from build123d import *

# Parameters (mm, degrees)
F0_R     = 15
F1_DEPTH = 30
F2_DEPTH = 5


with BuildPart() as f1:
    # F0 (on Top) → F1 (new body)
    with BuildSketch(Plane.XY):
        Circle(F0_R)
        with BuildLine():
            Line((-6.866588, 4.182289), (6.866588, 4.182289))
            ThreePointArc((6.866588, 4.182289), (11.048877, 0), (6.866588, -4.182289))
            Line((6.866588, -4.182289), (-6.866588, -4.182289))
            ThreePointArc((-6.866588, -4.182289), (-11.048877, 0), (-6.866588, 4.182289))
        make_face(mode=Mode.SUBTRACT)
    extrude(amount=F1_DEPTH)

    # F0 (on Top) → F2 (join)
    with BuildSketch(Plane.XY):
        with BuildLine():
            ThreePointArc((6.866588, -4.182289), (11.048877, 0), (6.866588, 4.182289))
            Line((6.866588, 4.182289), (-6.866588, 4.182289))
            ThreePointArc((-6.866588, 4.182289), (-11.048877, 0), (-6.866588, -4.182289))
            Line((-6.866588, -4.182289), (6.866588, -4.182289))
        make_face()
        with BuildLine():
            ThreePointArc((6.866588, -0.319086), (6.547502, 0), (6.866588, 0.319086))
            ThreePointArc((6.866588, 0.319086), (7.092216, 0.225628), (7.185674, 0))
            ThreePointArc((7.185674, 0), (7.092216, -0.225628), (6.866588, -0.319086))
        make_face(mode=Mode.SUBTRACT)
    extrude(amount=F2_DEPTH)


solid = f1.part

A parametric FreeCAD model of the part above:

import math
import FreeCAD as App
import Part
import Sketcher

V = App.Vector

doc = App.newDocument("Part")
body = doc.addObject("PartDesign::Body", "Body")

# Sketch on XY plane
sketch1 = doc.addObject("Sketcher::SketchObject", "Sketch")
body.addObject(sketch1)
sketch1.AttachmentSupport = (doc.XY_Plane, [""])
sketch1.MapMode = "FlatFace"
sketch1.addGeometry(Part.Circle(V(0, 0, 0), V(0, 0, 1), 15), False)
sketch1.addGeometry(Part.ArcOfCircle(Part.Circle(V(-6.9, 0, 0), V(0, 0, 1), 4.2), math.radians(90), math.radians(270)), False)
sketch1.addGeometry(Part.LineSegment(V(-6.9, 4.2, 0), V(6.9, 4.2, 0)), False)
sketch1.addGeometry(Part.ArcOfCircle(Part.Circle(V(6.9, 0, 0), V(0, 0, 1), 4.2), math.radians(-90), math.radians(90)), False)
sketch1.addGeometry(Part.LineSegment(V(6.9, -4.2, 0), V(-6.9, -4.2, 0)), False)
sketch1.addConstraint(Sketcher.Constraint("Tangent", 1, 1, 2, 1))
sketch1.addConstraint(Sketcher.Constraint("Tangent", 2, 2, 3, 2))
sketch1.addConstraint(Sketcher.Constraint("Tangent", 3, 1, 4, 1))
sketch1.addConstraint(Sketcher.Constraint("Tangent", 4, 2, 1, 2))
sketch1.addConstraint(Sketcher.Constraint("Horizontal", 2))
sketch1.addConstraint(Sketcher.Constraint("Horizontal", 4))
sketch1.addConstraint(Sketcher.Constraint("Coincident", 0, 3, -1, 1))
sketch1.addConstraint(Sketcher.Constraint("Symmetric", 1, 3, 3, 3, -1, 1))
sketch1.addConstraint(Sketcher.Constraint("Diameter", 0, 30.0))
sketch1.addConstraint(Sketcher.Constraint("Radius", 1, 4.182289))
sketch1.addConstraint(Sketcher.Constraint("DistanceX", 2, 1, 2, 2, 13.733176))
pad1 = doc.addObject("PartDesign::Pad", "Pad")
body.addObject(pad1)
pad1.Profile = sketch1
pad1.Length = 30

# Sketch on XY plane
sketch2 = doc.addObject("Sketcher::SketchObject", "Sketch001")
body.addObject(sketch2)
sketch2.AttachmentSupport = (doc.XY_Plane, [""])
sketch2.MapMode = "FlatFace"
sketch2.addGeometry(Part.ArcOfCircle(Part.Circle(V(6.87, 0, 0), V(0, 0, 1), 4.18), math.radians(-90), math.radians(90)), False)
sketch2.addGeometry(Part.LineSegment(V(6.87, 4.18, 0), V(-6.87, 4.18, 0)), False)
sketch2.addGeometry(Part.ArcOfCircle(Part.Circle(V(-6.87, 0, 0), V(0, 0, 1), 4.18), math.radians(90), math.radians(270)), False)
sketch2.addGeometry(Part.LineSegment(V(-6.87, -4.18, 0), V(6.87, -4.18, 0)), False)
sketch2.addGeometry(Part.ArcOfCircle(Part.Circle(V(6.87, 0, 0), V(0, 0, 1), 0.32), math.radians(-90), math.radians(0)), False)
sketch2.addGeometry(Part.ArcOfCircle(Part.Circle(V(6.87, 0, 0), V(0, 0, 1), 0.32), math.radians(90), math.radians(270)), False)
sketch2.addGeometry(Part.ArcOfCircle(Part.Circle(V(6.87, 0, 0), V(0, 0, 1), 0.32), math.radians(0), math.radians(90)), False)
sketch2.addConstraint(Sketcher.Constraint("Tangent", 0, 2, 1, 1))
sketch2.addConstraint(Sketcher.Constraint("Tangent", 1, 2, 2, 1))
sketch2.addConstraint(Sketcher.Constraint("Tangent", 2, 2, 3, 1))
sketch2.addConstraint(Sketcher.Constraint("Tangent", 3, 2, 0, 1))
sketch2.addConstraint(Sketcher.Constraint("Tangent", 4, 1, 5, 2))
sketch2.addConstraint(Sketcher.Constraint("Tangent", 5, 1, 6, 2))
sketch2.addConstraint(Sketcher.Constraint("Coincident", 6, 1, 4, 2))
sketch2.addConstraint(Sketcher.Constraint("Horizontal", 1))
sketch2.addConstraint(Sketcher.Constraint("Horizontal", 3))
sketch2.addConstraint(Sketcher.Constraint("Coincident", 4, 3, 0, 3))
sketch2.addConstraint(Sketcher.Constraint("Equal", 4, 5))
sketch2.addConstraint(Sketcher.Constraint("Symmetric", 0, 3, 2, 3, -1, 1))
sketch2.addConstraint(Sketcher.Constraint("PointOnObject", 6, 1, -1))
sketch2.addConstraint(Sketcher.Constraint("Vertical", 3, 2, 4, 1))
sketch2.addConstraint(Sketcher.Constraint("Vertical", 4, 1, 5, 1))
sketch2.addConstraint(Sketcher.Constraint("Radius", 0, 4.182289))
sketch2.addConstraint(Sketcher.Constraint("Radius", 4, 0.319086))
sketch2.addConstraint(Sketcher.Constraint("DistanceX", 1, 2, 1, 1, 13.733176))
pad2 = doc.addObject("PartDesign::Pad", "Pad001")
body.addObject(pad2)
pad2.Profile = sketch2
pad2.Length = 5

doc.recompute()
